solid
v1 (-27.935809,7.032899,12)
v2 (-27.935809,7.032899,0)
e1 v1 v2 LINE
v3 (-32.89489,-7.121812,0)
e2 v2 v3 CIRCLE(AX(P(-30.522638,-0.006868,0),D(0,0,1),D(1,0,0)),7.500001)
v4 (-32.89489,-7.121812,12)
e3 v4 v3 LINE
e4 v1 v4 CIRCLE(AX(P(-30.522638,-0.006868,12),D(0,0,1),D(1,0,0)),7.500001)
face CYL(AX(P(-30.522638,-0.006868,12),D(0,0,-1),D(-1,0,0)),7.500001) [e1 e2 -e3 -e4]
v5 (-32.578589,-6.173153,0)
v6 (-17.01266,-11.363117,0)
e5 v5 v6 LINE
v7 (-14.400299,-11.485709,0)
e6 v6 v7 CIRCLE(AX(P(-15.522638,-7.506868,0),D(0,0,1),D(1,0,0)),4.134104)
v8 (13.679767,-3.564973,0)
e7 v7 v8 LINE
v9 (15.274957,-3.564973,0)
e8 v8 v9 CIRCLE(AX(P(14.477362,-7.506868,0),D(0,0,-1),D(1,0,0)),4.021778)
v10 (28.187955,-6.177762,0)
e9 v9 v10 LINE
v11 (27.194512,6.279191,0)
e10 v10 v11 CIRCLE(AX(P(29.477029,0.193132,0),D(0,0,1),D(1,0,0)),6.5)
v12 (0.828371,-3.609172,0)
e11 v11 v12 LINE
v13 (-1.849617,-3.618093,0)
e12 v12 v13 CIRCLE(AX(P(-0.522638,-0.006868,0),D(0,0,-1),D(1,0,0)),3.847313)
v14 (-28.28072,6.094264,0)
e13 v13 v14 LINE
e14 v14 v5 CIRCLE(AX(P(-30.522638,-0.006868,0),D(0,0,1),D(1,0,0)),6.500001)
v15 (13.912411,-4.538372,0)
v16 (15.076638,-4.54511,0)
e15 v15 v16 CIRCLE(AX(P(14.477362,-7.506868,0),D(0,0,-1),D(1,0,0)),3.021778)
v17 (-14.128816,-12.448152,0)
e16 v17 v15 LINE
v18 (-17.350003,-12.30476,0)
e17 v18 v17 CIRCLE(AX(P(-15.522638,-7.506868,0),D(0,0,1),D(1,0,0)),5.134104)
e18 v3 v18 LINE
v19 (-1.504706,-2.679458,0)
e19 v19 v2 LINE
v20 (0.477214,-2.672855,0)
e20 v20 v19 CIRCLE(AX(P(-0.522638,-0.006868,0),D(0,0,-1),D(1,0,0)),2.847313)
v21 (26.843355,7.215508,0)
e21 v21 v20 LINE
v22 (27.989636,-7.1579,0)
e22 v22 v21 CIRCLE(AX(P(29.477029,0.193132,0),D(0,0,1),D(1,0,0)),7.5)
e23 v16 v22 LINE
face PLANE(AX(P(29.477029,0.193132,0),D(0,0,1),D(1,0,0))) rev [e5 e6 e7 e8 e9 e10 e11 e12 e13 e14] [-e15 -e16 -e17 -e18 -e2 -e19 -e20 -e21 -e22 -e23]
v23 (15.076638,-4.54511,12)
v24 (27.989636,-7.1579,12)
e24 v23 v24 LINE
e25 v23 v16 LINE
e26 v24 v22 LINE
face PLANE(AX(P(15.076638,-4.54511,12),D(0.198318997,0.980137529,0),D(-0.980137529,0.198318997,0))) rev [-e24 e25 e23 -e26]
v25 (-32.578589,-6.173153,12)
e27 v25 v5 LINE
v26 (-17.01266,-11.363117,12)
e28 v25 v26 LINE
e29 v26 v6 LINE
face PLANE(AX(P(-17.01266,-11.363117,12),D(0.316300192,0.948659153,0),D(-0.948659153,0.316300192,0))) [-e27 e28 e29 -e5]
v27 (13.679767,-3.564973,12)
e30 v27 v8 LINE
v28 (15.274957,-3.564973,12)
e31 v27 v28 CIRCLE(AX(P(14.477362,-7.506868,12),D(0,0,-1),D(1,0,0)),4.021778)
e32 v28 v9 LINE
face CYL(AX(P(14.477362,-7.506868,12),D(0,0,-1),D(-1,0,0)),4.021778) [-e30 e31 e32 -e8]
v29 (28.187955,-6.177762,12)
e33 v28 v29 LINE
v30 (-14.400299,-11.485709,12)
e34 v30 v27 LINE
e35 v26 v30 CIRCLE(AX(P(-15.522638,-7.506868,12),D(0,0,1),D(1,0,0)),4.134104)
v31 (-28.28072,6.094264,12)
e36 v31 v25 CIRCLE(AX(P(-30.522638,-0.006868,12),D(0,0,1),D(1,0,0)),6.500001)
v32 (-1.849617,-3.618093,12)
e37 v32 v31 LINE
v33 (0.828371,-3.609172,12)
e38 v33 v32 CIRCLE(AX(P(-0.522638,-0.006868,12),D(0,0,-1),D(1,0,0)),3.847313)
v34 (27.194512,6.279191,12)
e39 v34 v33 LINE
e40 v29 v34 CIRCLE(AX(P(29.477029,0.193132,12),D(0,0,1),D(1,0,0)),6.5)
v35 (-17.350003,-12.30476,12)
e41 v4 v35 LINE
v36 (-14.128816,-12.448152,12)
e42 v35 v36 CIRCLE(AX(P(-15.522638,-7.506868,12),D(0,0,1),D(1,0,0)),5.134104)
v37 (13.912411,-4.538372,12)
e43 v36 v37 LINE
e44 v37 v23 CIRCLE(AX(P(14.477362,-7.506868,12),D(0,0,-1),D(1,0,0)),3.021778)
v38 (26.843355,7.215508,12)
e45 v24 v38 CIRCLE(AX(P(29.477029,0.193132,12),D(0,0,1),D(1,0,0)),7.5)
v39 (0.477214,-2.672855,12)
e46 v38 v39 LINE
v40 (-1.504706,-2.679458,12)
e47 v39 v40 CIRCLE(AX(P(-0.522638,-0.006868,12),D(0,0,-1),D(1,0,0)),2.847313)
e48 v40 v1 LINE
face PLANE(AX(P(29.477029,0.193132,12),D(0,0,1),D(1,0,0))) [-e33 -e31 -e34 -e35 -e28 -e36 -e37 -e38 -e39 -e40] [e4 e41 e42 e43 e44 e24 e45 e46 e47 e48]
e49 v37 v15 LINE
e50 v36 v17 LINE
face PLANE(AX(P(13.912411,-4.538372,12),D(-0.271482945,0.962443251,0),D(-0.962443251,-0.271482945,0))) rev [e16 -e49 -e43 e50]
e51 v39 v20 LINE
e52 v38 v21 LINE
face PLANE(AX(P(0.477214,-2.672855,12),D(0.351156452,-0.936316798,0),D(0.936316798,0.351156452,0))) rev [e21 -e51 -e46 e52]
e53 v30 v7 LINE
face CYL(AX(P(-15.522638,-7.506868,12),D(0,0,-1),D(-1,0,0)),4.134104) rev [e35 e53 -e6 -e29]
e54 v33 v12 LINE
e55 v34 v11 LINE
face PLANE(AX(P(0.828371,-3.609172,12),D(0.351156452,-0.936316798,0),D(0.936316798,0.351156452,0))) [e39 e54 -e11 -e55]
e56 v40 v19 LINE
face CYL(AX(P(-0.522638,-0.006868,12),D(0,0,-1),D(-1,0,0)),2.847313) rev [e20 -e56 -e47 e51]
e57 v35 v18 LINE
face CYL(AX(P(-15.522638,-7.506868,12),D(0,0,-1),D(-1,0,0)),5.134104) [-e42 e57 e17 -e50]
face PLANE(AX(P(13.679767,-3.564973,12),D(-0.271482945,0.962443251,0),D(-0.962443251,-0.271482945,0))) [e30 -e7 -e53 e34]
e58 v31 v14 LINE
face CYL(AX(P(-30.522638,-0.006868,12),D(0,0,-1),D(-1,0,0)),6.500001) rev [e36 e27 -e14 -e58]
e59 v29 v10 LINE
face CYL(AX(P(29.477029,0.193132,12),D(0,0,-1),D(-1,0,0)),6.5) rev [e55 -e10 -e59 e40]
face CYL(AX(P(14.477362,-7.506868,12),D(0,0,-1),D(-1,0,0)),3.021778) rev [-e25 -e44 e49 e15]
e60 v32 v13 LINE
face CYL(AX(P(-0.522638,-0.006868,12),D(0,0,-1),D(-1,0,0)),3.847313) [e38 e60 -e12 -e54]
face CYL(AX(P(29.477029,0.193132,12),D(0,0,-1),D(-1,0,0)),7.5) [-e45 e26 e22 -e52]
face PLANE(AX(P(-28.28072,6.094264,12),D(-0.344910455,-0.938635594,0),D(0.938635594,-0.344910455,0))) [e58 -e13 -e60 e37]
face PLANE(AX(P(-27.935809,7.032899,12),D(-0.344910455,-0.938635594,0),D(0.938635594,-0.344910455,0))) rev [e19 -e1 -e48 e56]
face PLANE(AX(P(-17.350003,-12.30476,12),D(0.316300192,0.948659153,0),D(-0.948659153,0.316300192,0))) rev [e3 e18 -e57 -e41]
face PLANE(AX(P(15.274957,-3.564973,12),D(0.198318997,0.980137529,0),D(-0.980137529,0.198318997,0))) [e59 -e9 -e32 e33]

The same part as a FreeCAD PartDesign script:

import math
import FreeCAD as App
import Part
import Sketcher

doc = App.newDocument("Part")
body = doc.addObject("PartDesign::Body", "Body")

sketch1 = body.newObject("Sketcher::SketchObject", "Sketch")
sketch1.AttachmentSupport = (doc.getObject("XY_Plane"), [""])
sketch1.MapMode = "FlatFace"
sketch1.addGeometry([
    Part.LineSegment(App.Vector(26.843355, 7.215508, 0), App.Vector(0.477214, -2.672855, 0)),
    Part.ArcOfCircle(Part.Circle(App.Vector(-0.522638, -0.006868, 0), App.Vector(0, 0, 1), 2.847313), math.radians(-110.17633), math.radians(-69.441935)),
    Part.LineSegment(App.Vector(-1.504706, -2.679458, 0), App.Vector(-27.935809, 7.032899, 0)),
    Part.ArcOfCircle(Part.Circle(App.Vector(-30.522638, -0.006868, 0), App.Vector(0, 0, 1), 7.500001), math.radians(69.82367), math.radians(251.560677)),
    Part.LineSegment(App.Vector(-32.89489, -7.121812, 0), App.Vector(-17.350003, -12.30476, 0)),
    Part.ArcOfCircle(Part.Circle(App.Vector(-15.522638, -7.506868, 0), App.Vector(0, 0, 1), 5.134104), math.radians(-110.850256), math.radians(-74.24747)),
    Part.LineSegment(App.Vector(-14.128816, -12.448152, 0), App.Vector(13.912411, -4.538372, 0)),
    Part.ArcOfCircle(Part.Circle(App.Vector(14.477362, -7.506868, 0), App.Vector(0, 0, 1), 3.021778), math.radians(78.561324), math.radians(100.77542)),
    Part.LineSegment(App.Vector(15.076638, -4.54511, 0), App.Vector(27.989636, -7.1579, 0)),
    Part.ArcOfCircle(Part.Circle(App.Vector(29.477029, 0.193132, 0), App.Vector(0, 0, 1), 7.5), math.radians(-101.438676), math.radians(110.558065)),
    Part.LineSegment(App.Vector(-28.28072, 6.094264, 0), App.Vector(-1.849617, -3.618093, 0)),
    Part.ArcOfCircle(Part.Circle(App.Vector(-0.522638, -0.006868, 0), App.Vector(0, 0, 1), 3.847313), math.radians(-110.17633), math.radians(-69.441935)),
    Part.LineSegment(App.Vector(0.828371, -3.609172, 0), App.Vector(27.194512, 6.279191, 0)),
    Part.ArcOfCircle(Part.Circle(App.Vector(29.477029, 0.193132, 0), App.Vector(0, 0, 1), 6.5), math.radians(-101.438676), math.radians(110.558065)),
    Part.LineSegment(App.Vector(28.187955, -6.177762, 0), App.Vector(15.274957, -3.564973, 0)),
    Part.ArcOfCircle(Part.Circle(App.Vector(14.477362, -7.506868, 0), App.Vector(0, 0, 1), 4.021778), math.radians(78.561324), math.radians(101.438676)),
    Part.LineSegment(App.Vector(13.679767, -3.564973, 0), App.Vector(-14.400299, -11.485709, 0)),
    Part.ArcOfCircle(Part.Circle(App.Vector(-15.522638, -7.506868, 0), App.Vector(0, 0, 1), 4.134104), math.radians(-111.126118), math.radians(-74.24747)),
    Part.LineSegment(App.Vector(-17.01266, -11.363117, 0), App.Vector(-32.578589, -6.173153, 0)),
    Part.ArcOfCircle(Part.Circle(App.Vector(-30.522638, -0.006868, 0), App.Vector(0, 0, 1), 6.500001), math.radians(69.82367), math.radians(251.560677)),
], False)
sketch1.addConstraint([
    Sketcher.Constraint("Coincident", 0, 2, 1, 2),
    Sketcher.Constraint("Coincident", 1, 1, 2, 1),
    Sketcher.Constraint("Coincident", 2, 2, 3, 1),
    Sketcher.Constraint("Coincident", 3, 2, 4, 1),
    Sketcher.Constraint("Coincident", 4, 2, 5, 1),
    Sketcher.Constraint("Coincident", 5, 2, 6, 1),
    Sketcher.Constraint("Coincident", 6, 2, 7, 2),
    Sketcher.Constraint("Coincident", 7, 1, 8, 1),
    Sketcher.Constraint("Coincident", 8, 2, 9, 1),
    Sketcher.Constraint("Coincident", 9, 2, 0, 1),
    Sketcher.Constraint("Coincident", 10, 2, 11, 1),
    Sketcher.Constraint("Coincident", 11, 2, 12, 1),
    Sketcher.Constraint("Coincident", 12, 2, 13, 2),
    Sketcher.Constraint("Coincident", 13, 1, 14, 1),
    Sketcher.Constraint("Coincident", 14, 2, 15, 1),
    Sketcher.Constraint("Coincident", 15, 2, 16, 1),
    Sketcher.Constraint("Coincident", 16, 2, 17, 2),
    Sketcher.Constraint("Coincident", 17, 1, 18, 1),
    Sketcher.Constraint("Coincident", 18, 2, 19, 2),
    Sketcher.Constraint("Coincident", 19, 1, 10, 1),
    Sketcher.Constraint("Coincident", 11, 3, 1, 3),
    Sketcher.Constraint("Coincident", 13, 3, 9, 3),
    Sketcher.Constraint("Coincident", 15, 3, 7, 3),
    Sketcher.Constraint("Coincident", 17, 3, 5, 3),
    Sketcher.Constraint("Coincident", 19, 3, 3, 3),
    Sketcher.Constraint("Radius", 3, 7.500001),
    Sketcher.Constraint("Radius", 9, 7.5),
    Sketcher.Constraint("Radius", 13, 6.5),
    Sketcher.Constraint("Radius", 19, 6.500001),
    Sketcher.Constraint("DistanceX", 3, 3, 1, 3, 30.0),
    Sketcher.Constraint("DistanceX", 5, 3, 1, 3, 15.0),
    Sketcher.Constraint("DistanceX", 1, 3, 7, 3, 15.0),
    Sketcher.Constraint("DistanceY", 5, 3, 1, 3, 7.5),
    Sketcher.Constraint("DistanceY", 5, 3, 3, 3, 7.5),
    Sketcher.Constraint("DistanceY", 7, 3, 1, 3, 7.5),
    Sketcher.Constraint("DistanceY", 7, 3, 9, 3, 7.7),
    Sketcher.Constraint("Radius", 1, 2.847313),
    Sketcher.Constraint("Radius", 5, 5.134104),
    Sketcher.Constraint("Radius", 7, 3.021778),
    Sketcher.Constraint("Radius", 11, 3.847313),
    Sketcher.Constraint("Radius", 15, 4.021778),
    Sketcher.Constraint("Radius", 17, 4.134104),
    Sketcher.Constraint("DistanceX", 7, 1, 8, 2, 12.912998),
    Sketcher.Constraint("DistanceX", 14, 2, 13, 1, 12.912998),
    Sketcher.Constraint("DistanceY", -1, 1, 2, 2, 7.032899),
    Sketcher.Constraint("DistanceY", 8, 2, -1, 1, 7.1579),
    Sketcher.Constraint("DistanceX", 16, 2, -1, 1, 14.400299),
    Sketcher.Constraint("DistanceY", 7, 1, 12, 2, 10.824301),
    Sketcher.Constraint("DistanceY", 6, 2, 14, 2, 0.973399),
    Sketcher.Constraint("DistanceY", 6, 2, 15, 2, 0.973399),
    Sketcher.Constraint("DistanceX", 3, 2, 18, 2, 0.3163),
    Sketcher.Constraint("Distance", 6, 29.13546),
    Sketcher.Constraint("Distance", 8, 13.17468),
    Sketcher.Constraint("DistanceX", 1, 3, -1, 1, 0.522638),
    Sketcher.Constraint("DistanceY", 1, 3, -1, 1, 0.006868),
    Sketcher.Constraint("DistanceX", 3, 2, -1, 1, 32.89489),
    Sketcher.Constraint("DistanceY", 4, 2, -1, 1, 12.30476),
    Sketcher.Constraint("DistanceX", -1, 1, 6, 2, 13.912411),
    Sketcher.Constraint("DistanceX", -1, 1, 11, 2, 0.828371),
    Sketcher.Constraint("DistanceX", 17, 1, -1, 1, 17.01266),
    Sketcher.Constraint("DistanceX", 19, 1, -1, 1, 28.28072),
    Sketcher.Constraint("DistanceX", 1, 1, 0, 2, 1.98192),
    Sketcher.Constraint("DistanceX", 1, 1, 1, 3, 0.982068),
    Sketcher.Constraint("DistanceX", 9, 2, 8, 2, 1.146281),
    Sketcher.Constraint("DistanceX", 10, 2, 1, 1, 0.34491),
])
pad1 = body.newObject("PartDesign::Pad", "Pad")
pad1.Profile = sketch1
pad1.Length = 12

doc.recompute()
